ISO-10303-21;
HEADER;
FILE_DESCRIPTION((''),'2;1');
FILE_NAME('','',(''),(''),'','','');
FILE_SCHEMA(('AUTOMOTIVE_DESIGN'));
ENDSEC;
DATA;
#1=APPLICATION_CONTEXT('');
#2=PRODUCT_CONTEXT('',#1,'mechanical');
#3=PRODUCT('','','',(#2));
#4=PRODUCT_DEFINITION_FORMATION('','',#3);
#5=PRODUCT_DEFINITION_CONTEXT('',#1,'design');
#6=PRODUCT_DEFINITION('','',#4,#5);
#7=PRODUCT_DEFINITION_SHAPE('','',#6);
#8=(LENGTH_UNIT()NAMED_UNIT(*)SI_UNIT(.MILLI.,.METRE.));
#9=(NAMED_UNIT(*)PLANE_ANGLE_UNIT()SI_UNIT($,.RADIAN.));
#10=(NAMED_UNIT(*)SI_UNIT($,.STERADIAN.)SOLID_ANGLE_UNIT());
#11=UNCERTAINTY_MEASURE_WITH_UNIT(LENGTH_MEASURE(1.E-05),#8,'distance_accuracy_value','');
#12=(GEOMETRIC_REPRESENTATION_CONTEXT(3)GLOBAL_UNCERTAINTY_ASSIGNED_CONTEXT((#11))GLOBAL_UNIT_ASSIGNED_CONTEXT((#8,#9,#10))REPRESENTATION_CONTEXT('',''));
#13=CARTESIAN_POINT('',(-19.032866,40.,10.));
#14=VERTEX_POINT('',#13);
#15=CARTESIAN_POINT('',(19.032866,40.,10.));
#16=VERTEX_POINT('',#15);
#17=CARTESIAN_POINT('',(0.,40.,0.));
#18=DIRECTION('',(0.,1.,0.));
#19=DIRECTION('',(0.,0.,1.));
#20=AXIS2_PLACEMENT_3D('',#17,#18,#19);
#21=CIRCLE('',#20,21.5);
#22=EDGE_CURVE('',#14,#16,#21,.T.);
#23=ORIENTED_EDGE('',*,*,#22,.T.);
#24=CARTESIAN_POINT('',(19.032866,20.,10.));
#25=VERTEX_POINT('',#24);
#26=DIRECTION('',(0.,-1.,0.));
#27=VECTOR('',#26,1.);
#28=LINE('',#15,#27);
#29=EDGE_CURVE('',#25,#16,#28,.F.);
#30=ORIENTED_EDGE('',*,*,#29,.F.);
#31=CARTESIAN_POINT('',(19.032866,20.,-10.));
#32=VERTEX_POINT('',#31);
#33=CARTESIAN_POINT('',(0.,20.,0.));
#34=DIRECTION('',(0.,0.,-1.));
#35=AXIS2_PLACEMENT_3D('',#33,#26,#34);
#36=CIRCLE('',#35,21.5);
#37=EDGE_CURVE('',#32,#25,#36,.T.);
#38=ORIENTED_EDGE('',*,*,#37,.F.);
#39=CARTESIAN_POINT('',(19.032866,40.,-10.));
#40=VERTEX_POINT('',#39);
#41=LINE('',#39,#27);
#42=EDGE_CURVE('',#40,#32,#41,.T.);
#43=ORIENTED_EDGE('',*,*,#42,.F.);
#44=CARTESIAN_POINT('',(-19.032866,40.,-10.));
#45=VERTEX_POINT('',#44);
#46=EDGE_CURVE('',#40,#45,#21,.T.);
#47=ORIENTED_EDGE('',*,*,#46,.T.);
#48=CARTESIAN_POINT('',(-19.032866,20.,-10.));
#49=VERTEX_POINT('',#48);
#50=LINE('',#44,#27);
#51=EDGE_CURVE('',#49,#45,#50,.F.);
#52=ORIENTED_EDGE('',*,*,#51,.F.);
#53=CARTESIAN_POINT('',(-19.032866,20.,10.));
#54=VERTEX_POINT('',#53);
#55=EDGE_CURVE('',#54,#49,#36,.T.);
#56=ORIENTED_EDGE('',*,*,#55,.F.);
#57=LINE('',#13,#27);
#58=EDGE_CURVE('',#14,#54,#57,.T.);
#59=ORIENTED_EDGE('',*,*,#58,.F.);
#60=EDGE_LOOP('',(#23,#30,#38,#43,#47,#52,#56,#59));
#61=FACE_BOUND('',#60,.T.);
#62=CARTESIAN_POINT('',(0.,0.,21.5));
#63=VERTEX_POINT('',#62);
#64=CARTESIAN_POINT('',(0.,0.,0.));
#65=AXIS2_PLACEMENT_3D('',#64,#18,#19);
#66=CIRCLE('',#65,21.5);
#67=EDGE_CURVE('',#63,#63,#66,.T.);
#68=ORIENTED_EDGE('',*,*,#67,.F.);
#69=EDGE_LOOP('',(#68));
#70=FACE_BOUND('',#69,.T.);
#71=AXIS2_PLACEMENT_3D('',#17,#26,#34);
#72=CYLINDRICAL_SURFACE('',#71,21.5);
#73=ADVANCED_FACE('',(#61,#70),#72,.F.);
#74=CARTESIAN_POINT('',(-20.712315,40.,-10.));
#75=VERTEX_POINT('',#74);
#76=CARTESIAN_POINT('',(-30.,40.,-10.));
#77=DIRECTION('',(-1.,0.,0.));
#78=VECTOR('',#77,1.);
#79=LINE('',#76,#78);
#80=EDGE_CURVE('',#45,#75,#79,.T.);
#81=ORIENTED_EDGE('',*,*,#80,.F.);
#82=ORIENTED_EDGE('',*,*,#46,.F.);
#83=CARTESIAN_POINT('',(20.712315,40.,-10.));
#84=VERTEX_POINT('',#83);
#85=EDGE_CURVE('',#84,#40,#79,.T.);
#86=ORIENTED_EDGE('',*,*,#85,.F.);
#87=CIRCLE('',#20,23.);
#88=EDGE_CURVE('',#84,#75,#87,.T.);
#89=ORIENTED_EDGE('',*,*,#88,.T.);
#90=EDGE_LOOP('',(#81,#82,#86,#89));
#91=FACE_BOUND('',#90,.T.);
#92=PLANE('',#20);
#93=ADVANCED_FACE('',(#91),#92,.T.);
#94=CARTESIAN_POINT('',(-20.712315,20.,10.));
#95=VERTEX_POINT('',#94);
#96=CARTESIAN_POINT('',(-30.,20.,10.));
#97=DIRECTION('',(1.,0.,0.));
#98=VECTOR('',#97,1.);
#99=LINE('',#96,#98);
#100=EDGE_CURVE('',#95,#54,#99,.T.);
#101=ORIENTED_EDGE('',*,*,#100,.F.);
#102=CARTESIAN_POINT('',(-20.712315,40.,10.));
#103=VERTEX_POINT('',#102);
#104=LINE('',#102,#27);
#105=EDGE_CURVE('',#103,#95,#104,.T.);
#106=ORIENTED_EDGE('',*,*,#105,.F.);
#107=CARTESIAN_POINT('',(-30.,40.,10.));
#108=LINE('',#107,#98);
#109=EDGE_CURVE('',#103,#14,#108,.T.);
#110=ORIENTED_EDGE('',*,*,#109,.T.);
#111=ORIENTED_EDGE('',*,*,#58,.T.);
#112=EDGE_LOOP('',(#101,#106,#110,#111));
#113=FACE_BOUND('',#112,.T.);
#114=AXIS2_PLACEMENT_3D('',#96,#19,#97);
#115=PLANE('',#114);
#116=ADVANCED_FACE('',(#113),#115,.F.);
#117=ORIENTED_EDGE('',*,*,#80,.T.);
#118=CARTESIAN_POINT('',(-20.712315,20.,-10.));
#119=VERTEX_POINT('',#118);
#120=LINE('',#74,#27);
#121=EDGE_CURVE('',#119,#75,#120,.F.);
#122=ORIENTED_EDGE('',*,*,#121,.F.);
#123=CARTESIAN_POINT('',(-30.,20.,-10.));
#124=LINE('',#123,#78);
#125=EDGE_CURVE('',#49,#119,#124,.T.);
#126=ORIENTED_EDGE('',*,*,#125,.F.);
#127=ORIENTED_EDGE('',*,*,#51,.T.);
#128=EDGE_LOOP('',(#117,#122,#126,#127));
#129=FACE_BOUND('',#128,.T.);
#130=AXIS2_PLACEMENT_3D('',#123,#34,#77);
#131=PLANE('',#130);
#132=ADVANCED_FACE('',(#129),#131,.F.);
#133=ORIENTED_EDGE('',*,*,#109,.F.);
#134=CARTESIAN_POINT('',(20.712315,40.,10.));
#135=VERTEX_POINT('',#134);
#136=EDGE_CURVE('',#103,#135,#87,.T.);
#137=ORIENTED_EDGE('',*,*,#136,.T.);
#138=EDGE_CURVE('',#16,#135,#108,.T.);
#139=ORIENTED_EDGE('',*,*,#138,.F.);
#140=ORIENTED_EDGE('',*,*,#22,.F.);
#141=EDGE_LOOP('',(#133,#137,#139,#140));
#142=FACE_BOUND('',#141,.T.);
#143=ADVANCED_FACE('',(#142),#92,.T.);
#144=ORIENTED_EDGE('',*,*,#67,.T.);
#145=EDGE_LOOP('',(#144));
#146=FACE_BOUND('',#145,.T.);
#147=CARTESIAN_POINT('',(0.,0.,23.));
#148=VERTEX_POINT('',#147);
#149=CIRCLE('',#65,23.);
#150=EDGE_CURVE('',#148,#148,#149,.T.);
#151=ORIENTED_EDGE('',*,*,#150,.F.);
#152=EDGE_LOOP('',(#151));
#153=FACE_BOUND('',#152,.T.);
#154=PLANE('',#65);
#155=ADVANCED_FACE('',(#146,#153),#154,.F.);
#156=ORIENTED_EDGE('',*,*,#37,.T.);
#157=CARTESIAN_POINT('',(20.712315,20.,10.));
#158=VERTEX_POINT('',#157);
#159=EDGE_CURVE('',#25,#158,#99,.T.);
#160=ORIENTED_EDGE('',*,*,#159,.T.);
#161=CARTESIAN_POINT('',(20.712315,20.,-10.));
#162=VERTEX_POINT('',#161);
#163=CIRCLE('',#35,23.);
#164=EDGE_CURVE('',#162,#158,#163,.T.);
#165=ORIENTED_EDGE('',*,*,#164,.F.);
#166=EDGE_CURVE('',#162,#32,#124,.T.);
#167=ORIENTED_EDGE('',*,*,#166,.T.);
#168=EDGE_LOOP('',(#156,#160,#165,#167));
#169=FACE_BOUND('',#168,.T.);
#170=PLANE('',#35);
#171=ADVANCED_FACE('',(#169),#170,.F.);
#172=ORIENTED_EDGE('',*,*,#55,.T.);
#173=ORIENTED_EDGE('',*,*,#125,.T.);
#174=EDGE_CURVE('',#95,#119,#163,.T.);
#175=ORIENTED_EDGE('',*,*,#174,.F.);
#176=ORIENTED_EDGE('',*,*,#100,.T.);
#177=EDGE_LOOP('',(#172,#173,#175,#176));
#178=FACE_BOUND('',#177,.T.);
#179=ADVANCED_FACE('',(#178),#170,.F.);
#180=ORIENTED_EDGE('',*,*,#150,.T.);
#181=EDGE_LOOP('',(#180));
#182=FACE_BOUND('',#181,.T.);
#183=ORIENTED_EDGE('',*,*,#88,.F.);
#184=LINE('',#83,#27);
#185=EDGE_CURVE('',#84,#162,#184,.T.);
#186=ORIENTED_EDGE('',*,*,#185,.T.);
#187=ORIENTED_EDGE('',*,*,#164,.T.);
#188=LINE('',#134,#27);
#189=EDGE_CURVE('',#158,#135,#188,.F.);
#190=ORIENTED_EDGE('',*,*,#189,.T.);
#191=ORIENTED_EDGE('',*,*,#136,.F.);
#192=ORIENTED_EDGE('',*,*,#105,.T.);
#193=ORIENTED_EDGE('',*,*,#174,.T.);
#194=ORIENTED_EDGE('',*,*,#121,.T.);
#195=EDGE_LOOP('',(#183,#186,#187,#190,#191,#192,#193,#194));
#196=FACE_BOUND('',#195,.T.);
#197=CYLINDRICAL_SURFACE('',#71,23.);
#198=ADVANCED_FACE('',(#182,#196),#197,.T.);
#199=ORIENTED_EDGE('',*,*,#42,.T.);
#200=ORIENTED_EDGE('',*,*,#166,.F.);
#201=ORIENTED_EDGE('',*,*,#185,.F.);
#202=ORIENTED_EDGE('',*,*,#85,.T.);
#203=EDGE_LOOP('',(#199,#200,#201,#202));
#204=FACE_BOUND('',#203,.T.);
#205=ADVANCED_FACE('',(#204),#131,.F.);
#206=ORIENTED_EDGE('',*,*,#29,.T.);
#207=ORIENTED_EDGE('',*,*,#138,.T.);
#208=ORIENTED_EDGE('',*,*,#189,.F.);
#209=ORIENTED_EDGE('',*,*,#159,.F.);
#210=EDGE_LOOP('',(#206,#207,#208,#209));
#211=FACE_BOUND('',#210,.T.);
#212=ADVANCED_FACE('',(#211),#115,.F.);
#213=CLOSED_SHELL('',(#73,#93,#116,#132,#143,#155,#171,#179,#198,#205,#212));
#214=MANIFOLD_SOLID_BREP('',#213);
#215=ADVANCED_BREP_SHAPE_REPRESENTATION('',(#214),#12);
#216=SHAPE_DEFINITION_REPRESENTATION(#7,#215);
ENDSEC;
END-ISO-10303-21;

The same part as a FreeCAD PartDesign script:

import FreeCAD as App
import Part
import Sketcher
from FreeCAD import Vector
Q = App.Units.Quantity


def add_polygon(sketch, points):
    """Adds a closed chain of lines whose ends are joined by coincident constraints."""
    first, n = sketch.GeometryCount, len(points)
    for a, b in zip(points, points[1:] + points[:1]):
        sketch.addGeometry(Part.LineSegment(App.Vector(*a, 0), App.Vector(*b, 0)), False)
    for i in range(n):
        sketch.addConstraint(Sketcher.Constraint("Coincident", first + i, 2, first + (i + 1) % n, 1))

doc = App.newDocument("Part")
body = doc.addObject("PartDesign::Body", "Body")

# Sketch on XZ plane
sketch1 = body.newObject("Sketcher::SketchObject", "Sketch")
sketch1.AttachmentSupport = (doc.getObject("XZ_Plane"), [""])
sketch1.MapMode = "FlatFace"
sketch1.addGeometry(Part.Circle(Vector(0, 0, 0), Vector(0, 0, 1), 23), False)
sketch1.addGeometry(Part.Circle(Vector(0, 0, 0), Vector(0, 0, 1), 22), False)
sketch1.addConstraint(Sketcher.Constraint("Coincident", 0, 3, -1, 1))
sketch1.addConstraint(Sketcher.Constraint("Coincident", 1, 3, -1, 1))
sketch1.addConstraint(Sketcher.Constraint("Diameter", 0, Q("46 mm")))
sketch1.addConstraint(Sketcher.Constraint("Diameter", 1, Q("43 mm")))
pad1 = body.newObject("PartDesign::Pad", "Pad")
pad1.Profile = sketch1
pad1.Length = 40
pad1.Reversed = True

# Sketch on XZ plane
sketch2 = body.newObject("Sketcher::SketchObject", "Sketch001")
sketch2.AttachmentSupport = (doc.getObject("XZ_Plane"), [""])
sketch2.MapMode = "FlatFace"
sketch2.AttachmentOffset = App.Placement(Vector(0, 0, -40), App.Rotation())
add_polygon(sketch2, [(-30, -10), (-30, 10), (30, 10), (30, -10)])  # lines 0-3
sketch2.addConstraint(Sketcher.Constraint("Vertical", 0))
sketch2.addConstraint(Sketcher.Constraint("Horizontal", 1))
sketch2.addConstraint(Sketcher.Constraint("Vertical", 2))
sketch2.addConstraint(Sketcher.Constraint("Horizontal", 3))
sketch2.addConstraint(Sketcher.Constraint("Symmetric", 0, 2, 2, 2, -1, 1))
sketch2.addConstraint(Sketcher.Constraint("DistanceX", 1, 1, 1, 2, Q("60 mm")))
sketch2.addConstraint(Sketcher.Constraint("DistanceY", 0, 1, 0, 2, Q("20 mm")))
pocket1 = body.newObject("PartDesign::Pocket", "Pocket")
pocket1.Profile = sketch2
pocket1.Length = 20
pocket1.Reversed = True

doc.recompute()
